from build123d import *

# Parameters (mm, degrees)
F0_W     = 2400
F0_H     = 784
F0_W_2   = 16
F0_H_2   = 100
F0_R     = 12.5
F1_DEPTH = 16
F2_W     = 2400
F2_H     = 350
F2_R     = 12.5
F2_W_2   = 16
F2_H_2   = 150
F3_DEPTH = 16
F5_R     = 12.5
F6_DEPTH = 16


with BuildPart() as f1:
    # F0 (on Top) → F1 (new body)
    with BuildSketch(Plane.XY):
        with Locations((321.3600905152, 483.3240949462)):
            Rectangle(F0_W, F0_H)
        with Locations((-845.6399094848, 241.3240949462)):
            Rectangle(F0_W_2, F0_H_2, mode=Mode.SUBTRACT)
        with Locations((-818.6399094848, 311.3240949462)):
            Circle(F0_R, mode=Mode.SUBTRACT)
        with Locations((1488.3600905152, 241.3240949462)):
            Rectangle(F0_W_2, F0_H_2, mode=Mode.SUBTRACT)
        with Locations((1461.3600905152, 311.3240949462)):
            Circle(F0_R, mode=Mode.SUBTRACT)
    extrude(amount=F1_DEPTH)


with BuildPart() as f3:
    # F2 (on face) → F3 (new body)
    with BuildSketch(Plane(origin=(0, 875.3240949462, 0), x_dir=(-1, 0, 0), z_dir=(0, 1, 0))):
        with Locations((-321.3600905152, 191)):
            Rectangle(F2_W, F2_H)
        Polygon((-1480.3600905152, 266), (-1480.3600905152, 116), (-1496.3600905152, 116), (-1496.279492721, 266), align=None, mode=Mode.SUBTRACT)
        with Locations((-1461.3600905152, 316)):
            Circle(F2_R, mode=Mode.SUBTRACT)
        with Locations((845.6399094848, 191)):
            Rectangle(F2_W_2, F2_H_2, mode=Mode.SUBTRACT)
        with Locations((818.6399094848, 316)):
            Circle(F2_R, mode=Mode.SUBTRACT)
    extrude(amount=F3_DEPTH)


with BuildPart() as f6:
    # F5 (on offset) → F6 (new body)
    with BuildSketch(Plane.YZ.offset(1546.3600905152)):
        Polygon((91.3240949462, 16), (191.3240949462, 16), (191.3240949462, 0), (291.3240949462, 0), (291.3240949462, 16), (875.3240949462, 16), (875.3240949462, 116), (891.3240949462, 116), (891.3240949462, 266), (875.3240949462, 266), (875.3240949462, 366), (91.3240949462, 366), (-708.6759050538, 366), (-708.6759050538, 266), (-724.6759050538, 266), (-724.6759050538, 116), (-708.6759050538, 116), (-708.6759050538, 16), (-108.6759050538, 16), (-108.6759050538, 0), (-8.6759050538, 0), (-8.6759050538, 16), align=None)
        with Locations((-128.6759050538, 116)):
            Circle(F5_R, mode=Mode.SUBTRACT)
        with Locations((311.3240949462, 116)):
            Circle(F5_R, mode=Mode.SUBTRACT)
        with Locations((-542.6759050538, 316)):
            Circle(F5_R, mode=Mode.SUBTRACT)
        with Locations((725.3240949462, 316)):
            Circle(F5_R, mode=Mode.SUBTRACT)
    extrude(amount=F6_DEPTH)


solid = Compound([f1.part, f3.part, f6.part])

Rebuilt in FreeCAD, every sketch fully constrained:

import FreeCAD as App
import Part
import Sketcher
Q = App.Units.Quantity


def add_polygon(sketch, points):
    """Adds a closed chain of lines whose ends are joined by coincident constraints."""
    first, n = sketch.GeometryCount, len(points)
    for a, b in zip(points, points[1:] + points[:1]):
        sketch.addGeometry(Part.LineSegment(App.Vector(*a, 0), App.Vector(*b, 0)), False)
    for i in range(n):
        sketch.addConstraint(Sketcher.Constraint("Coincident", first + i, 2, first + (i + 1) % n, 1))

doc = App.newDocument("Part")
body = doc.addObject("PartDesign::Body", "Body")

# Sketch on XY plane
sketch1 = body.newObject("Sketcher::SketchObject", "Sketch")
sketch1.AttachmentSupport = (doc.getObject("XY_Plane"), [""])
sketch1.MapMode = "FlatFace"
add_polygon(sketch1, [(-879, 875), (-879, 91), (1521, 91), (1521, 875)])  # lines 0-3
add_polygon(sketch1, [(-838, 191), (-854, 191), (-854, 291), (-838, 291)])  # lines 4-7
add_polygon(sketch1, [(1496, 191), (1480, 191), (1480, 291), (1496, 291)])  # lines 8-11
sketch1.addGeometry(Part.Circle(App.Vector(-819, 311, 0), App.Vector(0, 0, 1), 12), False)  # 12
sketch1.addGeometry(Part.Circle(App.Vector(1461, 311, 0), App.Vector(0, 0, 1), 12), False)  # 13
sketch1.addConstraint([
    Sketcher.Constraint("Vertical", 0),
    Sketcher.Constraint("Horizontal", 1),
    Sketcher.Constraint("Vertical", 2),
    Sketcher.Constraint("Horizontal", 3),
    Sketcher.Constraint("Horizontal", 4),
    Sketcher.Constraint("Vertical", 5),
    Sketcher.Constraint("Horizontal", 6),
    Sketcher.Constraint("Vertical", 7),
    Sketcher.Constraint("Horizontal", 8),
    Sketcher.Constraint("Vertical", 9),
    Sketcher.Constraint("Horizontal", 10),
    Sketcher.Constraint("Vertical", 11),
    Sketcher.Constraint("Equal", 12, 13),
    Sketcher.Constraint("Horizontal", 12, 3, 13, 3),
    Sketcher.Constraint("Horizontal", 7, 2, 8, 2),
    Sketcher.Constraint("Horizontal", 6, 2, 9, 2),
    Sketcher.Constraint("Equal", 6, 8),
    Sketcher.Constraint("Diameter", 12, Q("25 mm")),
    Sketcher.Constraint("DistanceX", 1, 1, 1, 2, Q("2400 mm")),
    Sketcher.Constraint("DistanceX", 4, 2, 4, 1, Q("16 mm")),
    Sketcher.Constraint("DistanceY", 0, 2, 0, 1, Q("784 mm")),
    Sketcher.Constraint("DistanceY", 5, 1, 5, 2, Q("100 mm")),
    Sketcher.Constraint("DistanceX", 12, 3, 13, 3, Q("2280 mm")),
    Sketcher.Constraint("DistanceX", 0, 2, 12, 3, Q("60 mm")),
    Sketcher.Constraint("DistanceY", 0, 2, 12, 3, Q("220 mm")),
    Sketcher.Constraint("DistanceX", 0, 2, 4, 2, Q("25 mm")),
    Sketcher.Constraint("DistanceY", 0, 2, 4, 2, Q("100 mm")),
    Sketcher.Constraint("DistanceX", 8, 2, 1, 2, Q("41 mm")),
    Sketcher.Constraint("DistanceX", 12, 3, -1, 1, Q("818.639909 mm")),
    Sketcher.Constraint("DistanceY", -1, 1, 12, 3, Q("311.324095 mm")),
])
pad1 = body.newObject("PartDesign::Pad", "Pad")
pad1.Profile = sketch1
pad1.Length = 16
body2 = doc.addObject("PartDesign::Body", "Body001")

# Sketch on XZ plane
sketch2 = body2.newObject("Sketcher::SketchObject", "Sketch001")
sketch2.AttachmentSupport = (doc.getObject("XZ_Plane001"), [""])
sketch2.MapMode = "FlatFace"
sketch2.AttachmentOffset = App.Placement(App.Vector(0, 0, -875.324095), App.Rotation())
add_polygon(sketch2, [(1521, 366), (1521, 16), (-879, 16), (-879, 366)])  # lines 0-3
add_polygon(sketch2, [(1496, 266), (1480, 266), (1480, 116), (1496, 116)])  # lines 4-7
add_polygon(sketch2, [(-854, 116), (-838, 116), (-838, 266), (-854, 266)])  # lines 8-11
sketch2.addGeometry(Part.Circle(App.Vector(1461, 316, 0), App.Vector(0, 0, 1), 12), False)  # 12
sketch2.addGeometry(Part.Circle(App.Vector(-819, 316, 0), App.Vector(0, 0, 1), 12), False)  # 13
sketch2.addConstraint([
    Sketcher.Constraint("Vertical", 0),
    Sketcher.Constraint("Horizontal", 1),
    Sketcher.Constraint("Vertical", 2),
    Sketcher.Constraint("Horizontal", 3),
    Sketcher.Constraint("Horizontal", 4),
    Sketcher.Constraint("Vertical", 5),
    Sketcher.Constraint("Horizontal", 6),
    Sketcher.Constraint("Horizontal", 8),
    Sketcher.Constraint("Vertical", 9),
    Sketcher.Constraint("Horizontal", 10),
    Sketcher.Constraint("Vertical", 11),
    Sketcher.Constraint("Equal", 12, 13),
    Sketcher.Constraint("Horizontal", 12, 3, 13, 3),
    Sketcher.Constraint("Horizontal", 6, 2, 8, 2),
    Sketcher.Constraint("Horizontal", 7, 2, 9, 2),
    Sketcher.Constraint("Equal", 6, 8),
    Sketcher.Constraint("Diameter", 12, Q("25 mm")),
    Sketcher.Constraint("DistanceX", 1, 2, 1, 1, Q("2400 mm")),
    Sketcher.Constraint("DistanceX", 6, 1, 6, 2, Q("16 mm")),
    Sketcher.Constraint("DistanceY", 0, 2, 0, 1, Q("350 mm")),
    Sketcher.Constraint("DistanceY", 5, 2, 5, 1, Q("150 mm")),
    Sketcher.Constraint("DistanceY", -1, 1, 12, 3, Q("316 mm")),
    Sketcher.Constraint("DistanceY", -1, 1, 0, 2, Q("16 mm")),
    Sketcher.Constraint("DistanceY", -1, 1, 4, 2, Q("266 mm")),
    Sketcher.Constraint("DistanceX", 13, 3, 12, 3, Q("2280 mm")),
    Sketcher.Constraint("DistanceX", 12, 3, 0, 2, Q("60 mm")),
    Sketcher.Constraint("DistanceX", 12, 3, 4, 2, Q("19 mm")),
    Sketcher.Constraint("DistanceX", 1, 2, 8, 2, Q("41 mm")),
    Sketcher.Constraint("DistanceX", 4, 2, 4, 1, Q("15.919402 mm")),
    Sketcher.Constraint("DistanceX", -1, 1, 12, 3, Q("1461.360091 mm")),
])
pad2 = body2.newObject("PartDesign::Pad", "Pad001")
pad2.Profile = sketch2
pad2.Length = 16
pad2.Reversed = True
body3 = doc.addObject("PartDesign::Body", "Body002")

# Sketch on YZ plane
sketch3 = body3.newObject("Sketcher::SketchObject", "Sketch002")
sketch3.AttachmentSupport = (doc.getObject("YZ_Plane002"), [""])
sketch3.MapMode = "FlatFace"
sketch3.AttachmentOffset = App.Placement(App.Vector(0, 0, 1546.360091), App.Rotation())
add_polygon(sketch3, [(191, 16), (191, 0), (291, 0), (291, 16), (875, 16), (875, 116), (891, 116), (891, 266), (875, 266), (875, 366), (-709, 366), (-709, 266), (-725, 266), (-725, 116), (-709, 116), (-709, 16), (-109, 16), (-109, 0), (-9, 0), (-9, 16)])  # lines 0-19
sketch3.addGeometry(Part.Circle(App.Vector(-129, 116, 0), App.Vector(0, 0, 1), 12), False)  # 20
sketch3.addGeometry(Part.Circle(App.Vector(311, 116, 0), App.Vector(0, 0, 1), 12), False)  # 21
sketch3.addGeometry(Part.Circle(App.Vector(-543, 316, 0), App.Vector(0, 0, 1), 12), False)  # 22
sketch3.addGeometry(Part.Circle(App.Vector(725, 316, 0), App.Vector(0, 0, 1), 12), False)  # 23
sketch3.addConstraint([
    Sketcher.Constraint("Vertical", 0),
    Sketcher.Constraint("Horizontal", 1),
    Sketcher.Constraint("Vertical", 2),
    Sketcher.Constraint("Horizontal", 3),
    Sketcher.Constraint("Vertical", 4),
    Sketcher.Constraint("Horizontal", 5),
    Sketcher.Constraint("Vertical", 6),
    Sketcher.Constraint("Horizontal", 7),
    Sketcher.Constraint("Vertical", 8),
    Sketcher.Constraint("Horizontal", 9),
    Sketcher.Constraint("Vertical", 10),
    Sketcher.Constraint("Horizontal", 11),
    Sketcher.Constraint("Vertical", 12),
    Sketcher.Constraint("Horizontal", 13),
    Sketcher.Constraint("Vertical", 14),
    Sketcher.Constraint("Horizontal", 15),
    Sketcher.Constraint("Vertical", 16),
    Sketcher.Constraint("Horizontal", 17),
    Sketcher.Constraint("Vertical", 18),
    Sketcher.Constraint("Horizontal", 19),
    Sketcher.Constraint("Equal", 20, 21),
    Sketcher.Constraint("Equal", 21, 22),
    Sketcher.Constraint("Equal", 22, 23),
    Sketcher.Constraint("PointOnObject", 0, 2, -1),
    Sketcher.Constraint("PointOnObject", 16, 2, -1),
    Sketcher.Constraint("Horizontal", 20, 3, 21, 3),
    Sketcher.Constraint("Horizontal", 22, 3, 23, 3),
    Sketcher.Constraint("Horizontal", 21, 3, 4, 2),
    Sketcher.Constraint("Horizontal", 7, 2, 10, 2),
    Sketcher.Constraint("Horizontal", 5, 2, 12, 2),
    Sketcher.Constraint("Horizontal", 3, 2, 14, 2),
    Sketcher.Constraint("Horizontal", 15, 2, 18, 2),
    Sketcher.Constraint("Vertical", 4, 2, 7, 2),
    Sketcher.Constraint("Vertical", 10, 2, 13, 2),
    Sketcher.Constraint("Equal", 7, 11),
    Sketcher.Constraint("Equal", 1, 17),
    Sketcher.Constraint("Equal", 13, 0),
    Sketcher.Constraint("Equal", 17, 4),
    Sketcher.Constraint("Equal", 4, 8),
    Sketcher.Constraint("Diameter", 20, Q("25 mm")),
    Sketcher.Constraint("DistanceX", 1, 1, 1, 2, Q("100 mm")),
    Sketcher.Constraint("DistanceX", 3, 1, 3, 2, Q("584 mm")),
    Sketcher.Constraint("DistanceX", 5, 1, 5, 2, Q("16 mm")),
    Sketcher.Constraint("DistanceX", 9, 2, 9, 1, Q("1584 mm")),
    Sketcher.Constraint("DistanceX", 15, 1, 15, 2, Q("600 mm")),
    Sketcher.Constraint("DistanceY", 6, 1, 6, 2, Q("150 mm")),
    Sketcher.Constraint("DistanceY", -1, 1, 22, 3, Q("316 mm")),
    Sketcher.Constraint("DistanceX", 20, 3, 21, 3, Q("440 mm")),
    Sketcher.Constraint("DistanceX", 22, 3, 20, 3, Q("414 mm")),
    Sketcher.Constraint("DistanceX", 21, 3, 23, 3, Q("414 mm")),
    Sketcher.Constraint("DistanceX", 0, 2, 21, 3, Q("120 mm")),
    Sketcher.Constraint("DistanceX", 20, 3, -1, 1, Q("128.675905 mm")),
])
pad3 = body3.newObject("PartDesign::Pad", "Pad002")
pad3.Profile = sketch3
pad3.Length = 16

doc.recompute()
